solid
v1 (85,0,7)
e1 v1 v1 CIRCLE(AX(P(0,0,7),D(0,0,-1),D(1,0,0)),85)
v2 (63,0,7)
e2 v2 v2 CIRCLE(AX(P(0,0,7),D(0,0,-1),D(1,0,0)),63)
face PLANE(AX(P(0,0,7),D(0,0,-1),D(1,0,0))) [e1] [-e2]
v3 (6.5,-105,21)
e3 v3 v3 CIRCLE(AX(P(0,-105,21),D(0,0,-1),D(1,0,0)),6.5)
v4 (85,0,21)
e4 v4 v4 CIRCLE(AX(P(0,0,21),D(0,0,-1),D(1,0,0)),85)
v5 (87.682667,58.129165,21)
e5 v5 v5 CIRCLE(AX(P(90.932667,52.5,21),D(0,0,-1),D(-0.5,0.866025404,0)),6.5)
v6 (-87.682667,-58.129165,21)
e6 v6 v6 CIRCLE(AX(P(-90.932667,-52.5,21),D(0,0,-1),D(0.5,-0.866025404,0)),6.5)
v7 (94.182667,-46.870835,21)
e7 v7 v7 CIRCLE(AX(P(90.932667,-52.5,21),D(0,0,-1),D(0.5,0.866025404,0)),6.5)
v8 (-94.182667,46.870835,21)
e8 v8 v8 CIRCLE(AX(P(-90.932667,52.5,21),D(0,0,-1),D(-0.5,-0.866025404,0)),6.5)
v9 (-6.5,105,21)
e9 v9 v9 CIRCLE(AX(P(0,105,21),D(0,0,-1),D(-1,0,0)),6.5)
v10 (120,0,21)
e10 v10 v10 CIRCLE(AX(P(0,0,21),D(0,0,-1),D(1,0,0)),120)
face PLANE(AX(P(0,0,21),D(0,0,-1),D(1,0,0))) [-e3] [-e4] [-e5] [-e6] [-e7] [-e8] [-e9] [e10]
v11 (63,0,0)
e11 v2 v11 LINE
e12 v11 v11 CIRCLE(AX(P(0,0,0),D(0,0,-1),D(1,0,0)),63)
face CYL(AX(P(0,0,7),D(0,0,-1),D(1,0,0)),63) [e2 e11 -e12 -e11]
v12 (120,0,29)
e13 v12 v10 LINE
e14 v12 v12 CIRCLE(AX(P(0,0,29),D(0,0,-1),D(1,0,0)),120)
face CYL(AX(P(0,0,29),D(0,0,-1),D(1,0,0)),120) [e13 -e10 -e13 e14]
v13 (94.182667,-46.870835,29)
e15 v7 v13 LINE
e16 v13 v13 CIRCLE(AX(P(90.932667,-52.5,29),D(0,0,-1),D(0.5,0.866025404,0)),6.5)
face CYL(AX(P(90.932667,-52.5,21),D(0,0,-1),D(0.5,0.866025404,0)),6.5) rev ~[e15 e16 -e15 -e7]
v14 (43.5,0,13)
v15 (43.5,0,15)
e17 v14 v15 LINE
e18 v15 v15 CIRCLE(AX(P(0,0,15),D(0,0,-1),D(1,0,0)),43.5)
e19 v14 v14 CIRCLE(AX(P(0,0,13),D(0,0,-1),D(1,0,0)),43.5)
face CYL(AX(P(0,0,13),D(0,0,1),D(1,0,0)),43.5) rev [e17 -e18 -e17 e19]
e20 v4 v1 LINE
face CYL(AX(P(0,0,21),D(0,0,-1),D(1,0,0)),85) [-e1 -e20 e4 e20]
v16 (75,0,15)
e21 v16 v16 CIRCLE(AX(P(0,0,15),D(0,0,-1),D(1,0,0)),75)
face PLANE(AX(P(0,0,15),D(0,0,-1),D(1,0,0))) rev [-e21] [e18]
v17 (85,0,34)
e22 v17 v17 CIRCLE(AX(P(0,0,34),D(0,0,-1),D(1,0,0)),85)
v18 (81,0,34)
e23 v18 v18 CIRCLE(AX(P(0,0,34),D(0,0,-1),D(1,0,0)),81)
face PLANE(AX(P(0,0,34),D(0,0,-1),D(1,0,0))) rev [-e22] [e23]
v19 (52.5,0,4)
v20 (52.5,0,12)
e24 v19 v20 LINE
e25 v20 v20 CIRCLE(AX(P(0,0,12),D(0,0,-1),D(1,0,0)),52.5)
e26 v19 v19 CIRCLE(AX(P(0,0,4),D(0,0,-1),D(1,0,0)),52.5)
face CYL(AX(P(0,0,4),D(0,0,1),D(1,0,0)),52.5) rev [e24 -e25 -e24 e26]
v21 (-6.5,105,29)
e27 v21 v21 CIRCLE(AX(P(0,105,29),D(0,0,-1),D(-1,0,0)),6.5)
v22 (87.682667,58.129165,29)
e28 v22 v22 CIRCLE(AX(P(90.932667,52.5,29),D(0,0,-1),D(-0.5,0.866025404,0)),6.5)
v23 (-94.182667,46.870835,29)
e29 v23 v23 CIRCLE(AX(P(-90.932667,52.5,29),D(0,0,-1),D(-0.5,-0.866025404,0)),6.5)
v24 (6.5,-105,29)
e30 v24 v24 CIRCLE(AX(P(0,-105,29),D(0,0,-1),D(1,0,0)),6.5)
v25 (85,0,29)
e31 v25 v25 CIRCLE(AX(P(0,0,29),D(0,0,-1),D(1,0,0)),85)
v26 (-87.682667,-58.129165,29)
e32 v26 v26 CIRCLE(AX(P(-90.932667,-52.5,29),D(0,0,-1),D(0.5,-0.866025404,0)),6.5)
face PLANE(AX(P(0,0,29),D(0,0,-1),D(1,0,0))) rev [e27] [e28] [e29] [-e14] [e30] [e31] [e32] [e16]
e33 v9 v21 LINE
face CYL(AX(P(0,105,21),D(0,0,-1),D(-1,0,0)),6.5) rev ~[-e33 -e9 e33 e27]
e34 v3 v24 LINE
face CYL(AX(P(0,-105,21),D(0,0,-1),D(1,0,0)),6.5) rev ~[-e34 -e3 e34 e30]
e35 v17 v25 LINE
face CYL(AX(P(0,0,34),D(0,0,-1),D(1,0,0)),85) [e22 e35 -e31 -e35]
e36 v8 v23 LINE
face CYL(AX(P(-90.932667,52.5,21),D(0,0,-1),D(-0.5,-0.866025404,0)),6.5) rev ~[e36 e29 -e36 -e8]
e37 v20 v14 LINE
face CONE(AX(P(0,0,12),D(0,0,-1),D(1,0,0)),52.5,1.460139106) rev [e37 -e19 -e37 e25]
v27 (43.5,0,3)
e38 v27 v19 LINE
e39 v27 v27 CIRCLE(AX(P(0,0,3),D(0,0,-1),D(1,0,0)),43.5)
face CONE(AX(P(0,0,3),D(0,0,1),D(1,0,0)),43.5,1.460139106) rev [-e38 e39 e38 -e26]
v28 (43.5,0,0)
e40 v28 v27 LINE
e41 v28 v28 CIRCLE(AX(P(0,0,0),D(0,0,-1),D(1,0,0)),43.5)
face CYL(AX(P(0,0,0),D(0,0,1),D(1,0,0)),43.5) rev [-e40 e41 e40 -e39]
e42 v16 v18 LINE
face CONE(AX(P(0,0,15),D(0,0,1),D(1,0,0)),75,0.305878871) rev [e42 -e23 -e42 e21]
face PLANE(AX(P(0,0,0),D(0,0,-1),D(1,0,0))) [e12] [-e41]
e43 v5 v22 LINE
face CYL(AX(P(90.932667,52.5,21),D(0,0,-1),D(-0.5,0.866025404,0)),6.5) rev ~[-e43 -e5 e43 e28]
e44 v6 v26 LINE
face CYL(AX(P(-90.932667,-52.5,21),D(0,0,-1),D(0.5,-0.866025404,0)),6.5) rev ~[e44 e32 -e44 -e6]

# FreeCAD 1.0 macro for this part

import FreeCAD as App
import Part
import Sketcher

doc = App.newDocument("Part")
body = doc.addObject("PartDesign::Body", "Body")

# Sketch on YZ plane
sketch1 = body.newObject("Sketcher::SketchObject", "Sketch")
sketch1.AttachmentSupport = (doc.getObject("YZ_Plane"), [""])
sketch1.MapMode = "FlatFace"
sketch1.addGeometry([
    Part.LineSegment(App.Vector(43.5, 3, 0), App.Vector(43.5, 0, 0)),  # 0
    Part.LineSegment(App.Vector(43.5, 0, 0), App.Vector(63, 0, 0)),  # 1
    Part.LineSegment(App.Vector(63, 0, 0), App.Vector(63, 7, 0)),  # 2
    Part.LineSegment(App.Vector(63, 7, 0), App.Vector(85, 7, 0)),  # 3
    Part.LineSegment(App.Vector(85, 7, 0), App.Vector(85, 21, 0)),  # 4
    Part.LineSegment(App.Vector(85, 21, 0), App.Vector(120, 21, 0)),  # 5
    Part.LineSegment(App.Vector(120, 21, 0), App.Vector(120, 29, 0)),  # 6
    Part.LineSegment(App.Vector(120, 29, 0), App.Vector(85, 29, 0)),  # 7
    Part.LineSegment(App.Vector(85, 29, 0), App.Vector(85, 34, 0)),  # 8
    Part.LineSegment(App.Vector(85, 34, 0), App.Vector(81, 34, 0)),  # 9
    Part.LineSegment(App.Vector(81, 34, 0), App.Vector(75, 15, 0)),  # 10
    Part.LineSegment(App.Vector(75, 15, 0), App.Vector(43.5, 15, 0)),  # 11
    Part.LineSegment(App.Vector(43.5, 15, 0), App.Vector(43.5, 13, 0)),  # 12
    Part.LineSegment(App.Vector(43.5, 13, 0), App.Vector(52.5, 12, 0)),  # 13
    Part.LineSegment(App.Vector(52.5, 12, 0), App.Vector(52.5, 4, 0)),  # 14
    Part.LineSegment(App.Vector(52.5, 4, 0), App.Vector(43.5, 3, 0)),  # 15
], False)
sketch1.addConstraint([
    Sketcher.Constraint("Coincident", 0, 2, 1, 1),
    Sketcher.Constraint("Coincident", 1, 2, 2, 1),
    Sketcher.Constraint("Coincident", 2, 2, 3, 1),
    Sketcher.Constraint("Coincident", 3, 2, 4, 1),
    Sketcher.Constraint("Coincident", 4, 2, 5, 1),
    Sketcher.Constraint("Coincident", 5, 2, 6, 1),
    Sketcher.Constraint("Coincident", 6, 2, 7, 1),
    Sketcher.Constraint("Coincident", 7, 2, 8, 1),
    Sketcher.Constraint("Coincident", 8, 2, 9, 1),
    Sketcher.Constraint("Coincident", 9, 2, 10, 1),
    Sketcher.Constraint("Coincident", 10, 2, 11, 1),
    Sketcher.Constraint("Coincident", 11, 2, 12, 1),
    Sketcher.Constraint("Coincident", 12, 2, 13, 1),
    Sketcher.Constraint("Coincident", 13, 2, 14, 1),
    Sketcher.Constraint("Coincident", 14, 2, 15, 1),
    Sketcher.Constraint("Coincident", 15, 2, 0, 1),
    Sketcher.Constraint("Vertical", 0),
    Sketcher.Constraint("Horizontal", 1),
    Sketcher.Constraint("Vertical", 2),
    Sketcher.Constraint("Horizontal", 3),
    Sketcher.Constraint("Vertical", 4),
    Sketcher.Constraint("Horizontal", 5),
    Sketcher.Constraint("Vertical", 6),
    Sketcher.Constraint("Horizontal", 7),
    Sketcher.Constraint("Vertical", 8),
    Sketcher.Constraint("Horizontal", 9),
    Sketcher.Constraint("Horizontal", 11),
    Sketcher.Constraint("Vertical", 12),
    Sketcher.Constraint("Vertical", 14),
    Sketcher.Constraint("PointOnObject", 0, 2, -1),
    Sketcher.Constraint("Vertical", 4, 2, 7, 2),
    Sketcher.Constraint("Vertical", 0, 2, 11, 2),
    Sketcher.Constraint("Equal", 6, 14),
    Sketcher.Constraint("Equal", 13, 15),
    Sketcher.Constraint("DistanceX", 3, 1, 3, 2, 22.0),
    Sketcher.Constraint("DistanceX", 5, 1, 5, 2, 35.0),
    Sketcher.Constraint("DistanceX", 9, 2, 9, 1, 4.0),
    Sketcher.Constraint("DistanceY", 0, 2, 0, 1, 3.0),
    Sketcher.Constraint("DistanceY", 2, 1, 2, 2, 7.0),
    Sketcher.Constraint("DistanceY", 4, 1, 4, 2, 14.0),
    Sketcher.Constraint("DistanceY", 6, 1, 6, 2, 8.0),
    Sketcher.Constraint("DistanceY", 8, 1, 8, 2, 5.0),
    Sketcher.Constraint("DistanceY", 12, 2, 12, 1, 2.0),
    Sketcher.Constraint("DistanceX", 1, 1, 1, 2, 19.5),
    Sketcher.Constraint("DistanceX", 11, 2, 11, 1, 31.5),
    Sketcher.Constraint("DistanceX", -1, 1, 1, 2, 63.0),
    Sketcher.Constraint("DistanceY", -1, 1, 10, 2, 15.0),
    Sketcher.Constraint("DistanceX", 12, 2, 13, 2, 9.0),
])
revolution = body.newObject("PartDesign::Revolution", "Revolution")
revolution.Profile = sketch1
revolution.ReferenceAxis = (sketch1, ["V_Axis"])
revolution.Angle = 360

# Sketch on XY plane
sketch2 = body.newObject("Sketcher::SketchObject", "Sketch001")
sketch2.AttachmentSupport = (doc.getObject("XY_Plane"), [""])
sketch2.MapMode = "FlatFace"
sketch2.AttachmentOffset = App.Placement(App.Vector(0, 0, 21), App.Rotation())
sketch2.addGeometry(Part.Circle(App.Vector(0, 105, 0), App.Vector(0, 0, 1), 6), False)
sketch2.addConstraint([
    Sketcher.Constraint("PointOnObject", 0, 3, -2),
    Sketcher.Constraint("Diameter", 0, 13.0),
    Sketcher.Constraint("DistanceY", -1, 1, 0, 3, 105.0),
])
pocket1 = body.newObject("PartDesign::Pocket", "Pocket")
pocket1.Profile = sketch2
pocket1.Type = "ThroughAll"
pocket1.Reversed = True
doc.recompute()

polarpattern = body.newObject("PartDesign::PolarPattern", "PolarPattern")
polarpattern.Originals = [pocket1]
polarpattern.Axis = (doc.getObject("Z_Axis"), [""])
polarpattern.Angle = 360
polarpattern.Occurrences = 6
body.Tip = polarpattern

doc.recompute()
